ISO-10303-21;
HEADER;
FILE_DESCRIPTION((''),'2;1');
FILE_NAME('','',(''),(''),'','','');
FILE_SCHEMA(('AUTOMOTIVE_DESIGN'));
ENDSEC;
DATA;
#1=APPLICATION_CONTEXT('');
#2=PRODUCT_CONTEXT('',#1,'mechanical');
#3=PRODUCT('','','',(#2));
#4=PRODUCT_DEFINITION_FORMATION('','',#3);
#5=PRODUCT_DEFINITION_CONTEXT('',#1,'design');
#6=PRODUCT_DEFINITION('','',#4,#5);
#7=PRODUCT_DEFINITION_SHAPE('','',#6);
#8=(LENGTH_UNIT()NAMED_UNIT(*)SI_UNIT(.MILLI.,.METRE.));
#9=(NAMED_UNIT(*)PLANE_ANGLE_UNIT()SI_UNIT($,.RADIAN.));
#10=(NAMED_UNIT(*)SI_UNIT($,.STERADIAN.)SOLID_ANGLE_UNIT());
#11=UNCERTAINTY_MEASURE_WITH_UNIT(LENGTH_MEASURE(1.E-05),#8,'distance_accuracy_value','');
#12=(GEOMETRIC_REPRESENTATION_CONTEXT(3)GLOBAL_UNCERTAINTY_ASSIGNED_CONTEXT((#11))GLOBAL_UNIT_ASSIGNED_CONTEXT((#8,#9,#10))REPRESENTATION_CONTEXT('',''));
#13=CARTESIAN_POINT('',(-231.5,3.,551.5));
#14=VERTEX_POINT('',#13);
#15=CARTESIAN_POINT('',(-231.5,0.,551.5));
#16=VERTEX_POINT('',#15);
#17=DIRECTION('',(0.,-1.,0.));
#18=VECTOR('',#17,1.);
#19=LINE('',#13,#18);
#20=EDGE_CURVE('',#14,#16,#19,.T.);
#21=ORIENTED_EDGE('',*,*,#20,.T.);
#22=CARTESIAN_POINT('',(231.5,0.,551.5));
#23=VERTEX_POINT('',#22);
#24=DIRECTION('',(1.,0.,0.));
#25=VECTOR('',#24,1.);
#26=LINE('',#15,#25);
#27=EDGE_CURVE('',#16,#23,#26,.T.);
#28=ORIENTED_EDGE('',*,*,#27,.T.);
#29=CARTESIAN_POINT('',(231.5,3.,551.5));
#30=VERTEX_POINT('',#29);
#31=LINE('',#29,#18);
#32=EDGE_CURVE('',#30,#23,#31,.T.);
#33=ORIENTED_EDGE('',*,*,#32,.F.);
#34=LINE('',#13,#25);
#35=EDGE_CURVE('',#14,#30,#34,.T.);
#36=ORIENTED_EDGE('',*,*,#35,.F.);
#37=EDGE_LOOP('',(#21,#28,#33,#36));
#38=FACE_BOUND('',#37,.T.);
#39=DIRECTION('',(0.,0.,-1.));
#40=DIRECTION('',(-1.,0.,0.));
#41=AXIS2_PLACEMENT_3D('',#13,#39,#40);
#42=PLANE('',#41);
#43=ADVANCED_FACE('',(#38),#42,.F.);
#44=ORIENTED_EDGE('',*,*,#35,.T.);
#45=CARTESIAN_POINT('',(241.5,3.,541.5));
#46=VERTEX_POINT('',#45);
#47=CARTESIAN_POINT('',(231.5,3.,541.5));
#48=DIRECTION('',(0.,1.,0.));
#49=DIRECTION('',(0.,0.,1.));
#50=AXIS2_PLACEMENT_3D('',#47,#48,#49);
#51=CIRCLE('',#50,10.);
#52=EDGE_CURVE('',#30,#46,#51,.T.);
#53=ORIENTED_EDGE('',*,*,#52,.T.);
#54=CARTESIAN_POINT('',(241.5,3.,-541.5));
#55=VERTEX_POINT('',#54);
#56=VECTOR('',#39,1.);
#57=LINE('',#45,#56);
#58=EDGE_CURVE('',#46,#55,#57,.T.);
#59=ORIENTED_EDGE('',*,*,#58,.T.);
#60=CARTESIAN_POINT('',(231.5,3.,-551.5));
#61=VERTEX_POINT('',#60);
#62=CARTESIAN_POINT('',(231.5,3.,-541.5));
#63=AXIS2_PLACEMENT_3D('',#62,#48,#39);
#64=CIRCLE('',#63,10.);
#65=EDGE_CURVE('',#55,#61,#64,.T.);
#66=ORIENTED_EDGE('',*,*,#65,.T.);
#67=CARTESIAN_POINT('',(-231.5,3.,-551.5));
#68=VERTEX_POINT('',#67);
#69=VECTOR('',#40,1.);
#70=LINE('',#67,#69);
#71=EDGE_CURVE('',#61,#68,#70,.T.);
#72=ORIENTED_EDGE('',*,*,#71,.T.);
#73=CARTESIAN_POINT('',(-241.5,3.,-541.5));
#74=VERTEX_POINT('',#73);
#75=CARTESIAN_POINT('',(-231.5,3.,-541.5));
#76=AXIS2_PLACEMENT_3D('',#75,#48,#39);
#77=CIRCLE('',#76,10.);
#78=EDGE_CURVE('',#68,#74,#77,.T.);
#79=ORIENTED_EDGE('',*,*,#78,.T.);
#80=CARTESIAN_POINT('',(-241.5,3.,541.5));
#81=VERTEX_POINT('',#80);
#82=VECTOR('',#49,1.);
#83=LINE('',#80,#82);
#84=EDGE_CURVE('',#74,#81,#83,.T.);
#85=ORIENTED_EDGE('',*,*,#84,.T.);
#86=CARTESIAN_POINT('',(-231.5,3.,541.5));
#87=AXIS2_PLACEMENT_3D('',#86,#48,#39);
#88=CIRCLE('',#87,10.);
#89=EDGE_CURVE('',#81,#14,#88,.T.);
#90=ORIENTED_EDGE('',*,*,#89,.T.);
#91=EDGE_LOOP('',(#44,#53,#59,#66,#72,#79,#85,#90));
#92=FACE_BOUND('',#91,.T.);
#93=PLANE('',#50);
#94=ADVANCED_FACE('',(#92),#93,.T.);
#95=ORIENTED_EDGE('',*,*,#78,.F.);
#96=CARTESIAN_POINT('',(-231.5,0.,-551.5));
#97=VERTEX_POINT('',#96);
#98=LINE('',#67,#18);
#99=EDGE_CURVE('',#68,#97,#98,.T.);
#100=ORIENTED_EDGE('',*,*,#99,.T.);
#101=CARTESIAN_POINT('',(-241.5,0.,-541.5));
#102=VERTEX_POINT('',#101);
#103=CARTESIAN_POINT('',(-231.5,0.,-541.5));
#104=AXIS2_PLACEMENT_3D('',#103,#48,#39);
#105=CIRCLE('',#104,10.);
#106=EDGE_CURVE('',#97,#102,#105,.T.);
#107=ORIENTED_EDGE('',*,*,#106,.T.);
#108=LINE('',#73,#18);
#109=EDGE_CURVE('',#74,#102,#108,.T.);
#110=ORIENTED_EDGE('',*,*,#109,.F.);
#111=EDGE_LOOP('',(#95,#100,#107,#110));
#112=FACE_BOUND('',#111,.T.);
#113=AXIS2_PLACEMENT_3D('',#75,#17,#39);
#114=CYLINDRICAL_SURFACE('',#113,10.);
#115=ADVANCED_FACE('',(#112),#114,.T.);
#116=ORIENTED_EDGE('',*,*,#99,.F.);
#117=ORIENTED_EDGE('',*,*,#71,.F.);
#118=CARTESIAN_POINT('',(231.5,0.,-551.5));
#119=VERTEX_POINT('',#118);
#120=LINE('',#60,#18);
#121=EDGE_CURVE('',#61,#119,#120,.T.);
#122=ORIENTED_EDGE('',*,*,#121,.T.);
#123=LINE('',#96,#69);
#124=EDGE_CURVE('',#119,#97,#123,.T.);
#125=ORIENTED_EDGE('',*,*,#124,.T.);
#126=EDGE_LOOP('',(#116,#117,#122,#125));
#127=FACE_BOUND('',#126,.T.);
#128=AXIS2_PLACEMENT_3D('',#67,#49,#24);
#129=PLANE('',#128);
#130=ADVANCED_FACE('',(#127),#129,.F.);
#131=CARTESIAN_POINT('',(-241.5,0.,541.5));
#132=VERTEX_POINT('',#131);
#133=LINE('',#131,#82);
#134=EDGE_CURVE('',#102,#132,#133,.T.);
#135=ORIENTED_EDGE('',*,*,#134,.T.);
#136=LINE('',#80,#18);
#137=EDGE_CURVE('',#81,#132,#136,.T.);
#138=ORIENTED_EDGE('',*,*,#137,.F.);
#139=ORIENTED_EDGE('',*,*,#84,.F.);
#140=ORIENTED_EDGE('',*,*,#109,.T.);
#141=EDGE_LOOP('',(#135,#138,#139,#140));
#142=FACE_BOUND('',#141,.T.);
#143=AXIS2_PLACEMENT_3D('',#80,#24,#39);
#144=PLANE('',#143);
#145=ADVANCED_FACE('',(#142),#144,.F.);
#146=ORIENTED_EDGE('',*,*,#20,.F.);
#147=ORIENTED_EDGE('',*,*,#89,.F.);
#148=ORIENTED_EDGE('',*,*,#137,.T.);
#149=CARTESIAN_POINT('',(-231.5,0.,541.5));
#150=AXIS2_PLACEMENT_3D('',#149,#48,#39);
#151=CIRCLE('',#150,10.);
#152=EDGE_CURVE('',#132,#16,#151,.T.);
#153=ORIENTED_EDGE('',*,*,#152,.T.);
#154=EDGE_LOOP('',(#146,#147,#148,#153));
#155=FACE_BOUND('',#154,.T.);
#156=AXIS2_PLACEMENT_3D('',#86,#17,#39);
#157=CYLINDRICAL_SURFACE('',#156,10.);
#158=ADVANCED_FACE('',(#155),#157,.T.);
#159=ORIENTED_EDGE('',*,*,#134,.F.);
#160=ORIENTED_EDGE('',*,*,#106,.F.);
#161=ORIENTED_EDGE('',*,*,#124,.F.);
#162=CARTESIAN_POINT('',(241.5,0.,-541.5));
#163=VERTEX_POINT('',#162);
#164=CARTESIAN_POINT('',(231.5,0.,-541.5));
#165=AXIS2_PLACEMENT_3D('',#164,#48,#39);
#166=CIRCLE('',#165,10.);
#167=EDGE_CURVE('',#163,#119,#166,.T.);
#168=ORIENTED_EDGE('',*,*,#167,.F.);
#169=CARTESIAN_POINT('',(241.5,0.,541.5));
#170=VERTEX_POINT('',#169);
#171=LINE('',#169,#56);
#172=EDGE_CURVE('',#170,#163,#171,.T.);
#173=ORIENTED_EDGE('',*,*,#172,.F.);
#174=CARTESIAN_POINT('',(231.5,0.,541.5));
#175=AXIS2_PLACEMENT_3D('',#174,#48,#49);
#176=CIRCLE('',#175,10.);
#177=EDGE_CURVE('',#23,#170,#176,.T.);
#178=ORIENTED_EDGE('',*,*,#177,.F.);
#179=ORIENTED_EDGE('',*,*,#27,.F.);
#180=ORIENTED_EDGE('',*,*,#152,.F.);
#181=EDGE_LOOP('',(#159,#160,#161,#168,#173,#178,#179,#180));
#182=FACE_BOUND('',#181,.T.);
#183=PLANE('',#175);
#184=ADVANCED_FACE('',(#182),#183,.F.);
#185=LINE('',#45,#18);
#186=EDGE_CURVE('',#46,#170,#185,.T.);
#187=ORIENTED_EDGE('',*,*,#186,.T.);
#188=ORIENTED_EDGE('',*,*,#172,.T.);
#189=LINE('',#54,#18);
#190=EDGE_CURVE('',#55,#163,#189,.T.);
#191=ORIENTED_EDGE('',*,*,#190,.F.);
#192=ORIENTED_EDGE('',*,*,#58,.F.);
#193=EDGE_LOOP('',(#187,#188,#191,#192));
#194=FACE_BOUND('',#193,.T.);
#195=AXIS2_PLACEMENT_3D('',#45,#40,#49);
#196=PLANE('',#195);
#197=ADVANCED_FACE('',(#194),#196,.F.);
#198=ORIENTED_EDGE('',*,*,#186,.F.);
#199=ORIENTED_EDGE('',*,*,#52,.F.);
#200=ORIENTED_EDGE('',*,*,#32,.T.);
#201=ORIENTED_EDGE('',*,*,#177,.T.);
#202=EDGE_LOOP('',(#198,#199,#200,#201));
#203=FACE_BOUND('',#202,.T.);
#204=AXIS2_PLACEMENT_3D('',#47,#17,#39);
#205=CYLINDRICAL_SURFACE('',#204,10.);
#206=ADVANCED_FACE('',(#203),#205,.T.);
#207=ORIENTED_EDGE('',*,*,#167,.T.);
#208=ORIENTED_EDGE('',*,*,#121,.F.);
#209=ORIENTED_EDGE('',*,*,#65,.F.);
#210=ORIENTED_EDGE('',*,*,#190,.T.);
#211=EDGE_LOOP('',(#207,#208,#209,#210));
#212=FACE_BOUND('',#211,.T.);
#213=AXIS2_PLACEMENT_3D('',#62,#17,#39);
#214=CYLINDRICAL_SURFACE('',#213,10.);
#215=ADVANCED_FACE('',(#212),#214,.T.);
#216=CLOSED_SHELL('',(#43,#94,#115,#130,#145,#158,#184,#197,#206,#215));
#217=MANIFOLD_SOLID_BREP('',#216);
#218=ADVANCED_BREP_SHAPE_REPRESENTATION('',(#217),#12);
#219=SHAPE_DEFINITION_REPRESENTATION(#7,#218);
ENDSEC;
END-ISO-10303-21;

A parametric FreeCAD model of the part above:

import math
import FreeCAD as App
import Part
import Sketcher

V = App.Vector
Q = App.Units.Quantity

doc = App.newDocument("Part")
body = doc.addObject("PartDesign::Body", "Body")

# Sketch on XZ plane
sketch1 = body.newObject("Sketcher::SketchObject", "Sketch")
sketch1.AttachmentSupport = (doc.getObject("XZ_Plane"), [""])
sketch1.MapMode = "FlatFace"
sketch1.addGeometry([
    Part.LineSegment(V(-232, 552, 0), V(232, 552, 0)),  # 0
    Part.ArcOfCircle(Part.Circle(V(232, 542, 0), V(0, 0, 1), 10), math.radians(0), math.radians(90)),  # 1
    Part.LineSegment(V(242, 542, 0), V(242, -542, 0)),  # 2
    Part.ArcOfCircle(Part.Circle(V(232, -542, 0), V(0, 0, 1), 10), math.radians(-90), math.radians(0)),  # 3
    Part.LineSegment(V(232, -552, 0), V(-232, -552, 0)),  # 4
    Part.ArcOfCircle(Part.Circle(V(-232, -542, 0), V(0, 0, 1), 10), math.radians(180), math.radians(270)),  # 5
    Part.LineSegment(V(-242, -542, 0), V(-242, 542, 0)),  # 6
    Part.ArcOfCircle(Part.Circle(V(-232, 542, 0), V(0, 0, 1), 10), math.radians(90), math.radians(180)),  # 7
], False)
sketch1.addConstraint([
    Sketcher.Constraint("Tangent", 0, 2, 1, 2),
    Sketcher.Constraint("Tangent", 1, 1, 2, 1),
    Sketcher.Constraint("Tangent", 2, 2, 3, 2),
    Sketcher.Constraint("Tangent", 3, 1, 4, 1),
    Sketcher.Constraint("Tangent", 4, 2, 5, 2),
    Sketcher.Constraint("Tangent", 5, 1, 6, 1),
    Sketcher.Constraint("Tangent", 6, 2, 7, 2),
    Sketcher.Constraint("Tangent", 7, 1, 0, 1),
    Sketcher.Constraint("Horizontal", 0),
    Sketcher.Constraint("Vertical", 2),
    Sketcher.Constraint("Horizontal", 4),
    Sketcher.Constraint("Vertical", 6),
    Sketcher.Constraint("Equal", 1, 3),
    Sketcher.Constraint("Equal", 3, 5),
    Sketcher.Constraint("Equal", 5, 7),
    Sketcher.Constraint("Symmetric", 1, 3, 5, 3, -1, 1),
    Sketcher.Constraint("Radius", 1, Q("10 mm")),
    Sketcher.Constraint("DistanceX", 0, 1, 0, 2, Q("463 mm")),
    Sketcher.Constraint("DistanceY", 2, 2, 2, 1, Q("1083 mm")),
])
pad1 = body.newObject("PartDesign::Pad", "Pad")
pad1.Profile = sketch1
pad1.Length = 3
pad1.Reversed = True

doc.recompute()
